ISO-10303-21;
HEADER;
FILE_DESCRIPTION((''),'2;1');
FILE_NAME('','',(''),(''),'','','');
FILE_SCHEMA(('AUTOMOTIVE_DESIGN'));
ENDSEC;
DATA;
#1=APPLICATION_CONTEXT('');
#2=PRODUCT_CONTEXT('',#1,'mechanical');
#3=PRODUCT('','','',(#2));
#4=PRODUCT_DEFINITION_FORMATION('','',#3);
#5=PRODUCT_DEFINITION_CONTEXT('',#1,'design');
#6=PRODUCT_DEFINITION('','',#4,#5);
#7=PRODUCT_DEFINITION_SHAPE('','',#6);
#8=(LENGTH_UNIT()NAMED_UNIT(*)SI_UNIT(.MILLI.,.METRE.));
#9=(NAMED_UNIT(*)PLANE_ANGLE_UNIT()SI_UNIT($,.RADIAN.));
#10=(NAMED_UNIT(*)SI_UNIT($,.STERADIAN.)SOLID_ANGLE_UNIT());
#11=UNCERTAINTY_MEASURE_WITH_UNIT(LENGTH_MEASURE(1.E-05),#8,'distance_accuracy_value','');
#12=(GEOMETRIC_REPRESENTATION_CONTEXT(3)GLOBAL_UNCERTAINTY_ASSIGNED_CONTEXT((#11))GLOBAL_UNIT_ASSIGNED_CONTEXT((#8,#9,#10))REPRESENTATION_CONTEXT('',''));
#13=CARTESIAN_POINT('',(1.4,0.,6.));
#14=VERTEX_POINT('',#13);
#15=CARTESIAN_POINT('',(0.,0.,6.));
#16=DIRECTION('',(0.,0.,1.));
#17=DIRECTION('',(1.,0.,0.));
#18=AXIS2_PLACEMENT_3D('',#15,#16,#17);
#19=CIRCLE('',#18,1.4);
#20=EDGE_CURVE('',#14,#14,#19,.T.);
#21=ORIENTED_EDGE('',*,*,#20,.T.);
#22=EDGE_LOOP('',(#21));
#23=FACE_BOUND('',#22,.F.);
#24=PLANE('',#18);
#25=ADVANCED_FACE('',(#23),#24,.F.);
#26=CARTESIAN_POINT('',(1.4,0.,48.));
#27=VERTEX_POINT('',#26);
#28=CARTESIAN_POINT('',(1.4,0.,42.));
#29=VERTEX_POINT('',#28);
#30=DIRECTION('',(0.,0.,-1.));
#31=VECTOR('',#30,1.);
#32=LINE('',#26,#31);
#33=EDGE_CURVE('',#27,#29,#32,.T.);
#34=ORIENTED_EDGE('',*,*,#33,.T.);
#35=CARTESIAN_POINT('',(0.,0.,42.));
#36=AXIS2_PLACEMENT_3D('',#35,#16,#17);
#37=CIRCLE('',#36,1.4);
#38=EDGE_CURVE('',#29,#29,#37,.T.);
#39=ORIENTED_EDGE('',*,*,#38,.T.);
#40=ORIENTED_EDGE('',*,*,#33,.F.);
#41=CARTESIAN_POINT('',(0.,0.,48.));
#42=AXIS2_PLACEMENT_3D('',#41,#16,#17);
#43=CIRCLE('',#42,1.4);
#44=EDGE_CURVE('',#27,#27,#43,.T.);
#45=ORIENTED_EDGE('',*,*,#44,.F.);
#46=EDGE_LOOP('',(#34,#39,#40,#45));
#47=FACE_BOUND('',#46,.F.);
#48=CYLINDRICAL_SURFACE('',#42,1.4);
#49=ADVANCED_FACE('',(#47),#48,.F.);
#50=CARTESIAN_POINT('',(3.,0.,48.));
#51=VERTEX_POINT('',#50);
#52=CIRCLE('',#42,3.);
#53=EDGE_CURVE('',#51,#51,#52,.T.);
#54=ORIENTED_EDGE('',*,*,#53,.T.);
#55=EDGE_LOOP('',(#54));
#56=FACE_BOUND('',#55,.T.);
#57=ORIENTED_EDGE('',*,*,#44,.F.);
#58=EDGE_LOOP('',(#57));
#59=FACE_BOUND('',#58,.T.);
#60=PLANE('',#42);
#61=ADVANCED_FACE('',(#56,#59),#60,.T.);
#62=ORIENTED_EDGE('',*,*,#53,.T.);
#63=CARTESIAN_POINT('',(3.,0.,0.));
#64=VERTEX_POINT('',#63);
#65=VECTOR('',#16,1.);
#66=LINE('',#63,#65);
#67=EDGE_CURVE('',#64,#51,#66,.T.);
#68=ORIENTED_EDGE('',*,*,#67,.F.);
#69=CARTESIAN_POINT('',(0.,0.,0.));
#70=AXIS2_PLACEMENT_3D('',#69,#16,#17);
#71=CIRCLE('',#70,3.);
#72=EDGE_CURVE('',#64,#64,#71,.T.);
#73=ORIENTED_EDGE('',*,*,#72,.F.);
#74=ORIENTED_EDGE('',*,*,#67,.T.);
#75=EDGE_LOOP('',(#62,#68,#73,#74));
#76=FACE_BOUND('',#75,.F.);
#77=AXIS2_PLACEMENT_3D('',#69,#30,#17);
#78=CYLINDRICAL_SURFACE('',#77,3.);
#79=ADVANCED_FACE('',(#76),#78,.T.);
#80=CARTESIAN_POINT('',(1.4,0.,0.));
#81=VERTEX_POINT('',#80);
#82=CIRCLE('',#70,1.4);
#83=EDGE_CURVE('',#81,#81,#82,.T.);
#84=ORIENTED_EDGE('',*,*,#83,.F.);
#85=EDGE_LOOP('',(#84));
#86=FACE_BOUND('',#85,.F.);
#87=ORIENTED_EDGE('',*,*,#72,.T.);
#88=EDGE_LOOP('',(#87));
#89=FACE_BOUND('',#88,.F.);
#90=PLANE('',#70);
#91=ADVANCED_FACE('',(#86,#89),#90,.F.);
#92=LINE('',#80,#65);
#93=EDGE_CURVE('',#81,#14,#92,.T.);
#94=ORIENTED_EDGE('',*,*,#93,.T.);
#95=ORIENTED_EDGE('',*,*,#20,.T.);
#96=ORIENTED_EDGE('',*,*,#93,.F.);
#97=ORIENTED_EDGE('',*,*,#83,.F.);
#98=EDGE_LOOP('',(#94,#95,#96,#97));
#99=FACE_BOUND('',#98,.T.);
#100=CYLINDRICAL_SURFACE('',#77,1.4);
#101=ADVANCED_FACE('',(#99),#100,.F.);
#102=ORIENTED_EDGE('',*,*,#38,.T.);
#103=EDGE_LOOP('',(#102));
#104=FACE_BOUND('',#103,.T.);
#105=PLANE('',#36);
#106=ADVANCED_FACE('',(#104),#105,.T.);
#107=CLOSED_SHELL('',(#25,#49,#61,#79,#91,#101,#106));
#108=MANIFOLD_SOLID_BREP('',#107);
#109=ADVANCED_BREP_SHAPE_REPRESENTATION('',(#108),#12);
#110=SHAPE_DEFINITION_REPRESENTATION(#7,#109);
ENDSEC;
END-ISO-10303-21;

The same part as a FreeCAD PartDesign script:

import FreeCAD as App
import Part
import Sketcher

V = App.Vector

doc = App.newDocument("Part")
body = doc.addObject("PartDesign::Body", "Body")

# Sketch on XY plane
sketch1 = doc.addObject("Sketcher::SketchObject", "Sketch")
body.addObject(sketch1)
sketch1.AttachmentSupport = (doc.XY_Plane, [""])
sketch1.MapMode = "FlatFace"
sketch1.addGeometry(Part.Circle(V(0, 0, 0), V(0, 0, 1), 3), False)
sketch1.addConstraint([
    Sketcher.Constraint("Coincident", 0, 3, -1, 1),
    Sketcher.Constraint("Diameter", 0, 6.0),
])
pad1 = doc.addObject("PartDesign::Pad", "Pad")
body.addObject(pad1)
pad1.Profile = sketch1
pad1.Length = 48

# Sketch on XY plane
sketch2 = doc.addObject("Sketcher::SketchObject", "Sketch001")
body.addObject(sketch2)
sketch2.AttachmentSupport = (doc.XY_Plane, [""])
sketch2.MapMode = "FlatFace"
sketch2.AttachmentOffset = App.Placement(V(0, 0, 48), App.Rotation())
sketch2.addGeometry(Part.Circle(V(0, 0, 0), V(0, 0, 1), 1.4), False)
sketch2.addConstraint([
    Sketcher.Constraint("Coincident", 0, 3, -1, 1),
    Sketcher.Constraint("Diameter", 0, 2.8),
])
pocket1 = doc.addObject("PartDesign::Pocket", "Pocket")
body.addObject(pocket1)
pocket1.Profile = sketch2
pocket1.Length = 6

# Sketch on XY plane
sketch3 = doc.addObject("Sketcher::SketchObject", "Sketch002")
body.addObject(sketch3)
sketch3.AttachmentSupport = (doc.XY_Plane, [""])
sketch3.MapMode = "FlatFace"
sketch3.addGeometry(Part.Circle(V(0, 0, 0), V(0, 0, 1), 1.4), False)
sketch3.addConstraint([
    Sketcher.Constraint("Coincident", 0, 3, -1, 1),
    Sketcher.Constraint("Diameter", 0, 2.8),
])
pocket2 = doc.addObject("PartDesign::Pocket", "Pocket001")
body.addObject(pocket2)
pocket2.Profile = sketch3
pocket2.Length = 6
pocket2.Reversed = True

doc.recompute()
